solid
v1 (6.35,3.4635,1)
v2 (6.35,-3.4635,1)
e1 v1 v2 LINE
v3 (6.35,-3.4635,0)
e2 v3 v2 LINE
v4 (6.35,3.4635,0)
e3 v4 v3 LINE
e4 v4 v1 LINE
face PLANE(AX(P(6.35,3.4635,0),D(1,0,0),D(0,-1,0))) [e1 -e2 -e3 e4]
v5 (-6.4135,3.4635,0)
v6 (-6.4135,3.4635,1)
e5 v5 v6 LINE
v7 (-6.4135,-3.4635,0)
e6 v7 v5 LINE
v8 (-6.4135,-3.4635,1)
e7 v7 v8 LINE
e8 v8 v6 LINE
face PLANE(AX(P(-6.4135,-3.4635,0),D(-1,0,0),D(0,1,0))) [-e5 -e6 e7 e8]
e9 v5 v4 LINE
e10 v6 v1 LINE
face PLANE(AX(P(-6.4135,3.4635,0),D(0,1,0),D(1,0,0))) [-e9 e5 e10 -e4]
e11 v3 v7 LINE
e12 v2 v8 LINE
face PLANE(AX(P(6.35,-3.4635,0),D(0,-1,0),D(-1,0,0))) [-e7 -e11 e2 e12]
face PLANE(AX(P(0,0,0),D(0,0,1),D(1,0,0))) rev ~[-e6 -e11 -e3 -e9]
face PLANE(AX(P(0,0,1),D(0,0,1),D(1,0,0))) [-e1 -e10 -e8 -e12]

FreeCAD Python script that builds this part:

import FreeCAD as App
import Part
import Sketcher

doc = App.newDocument("Part")
body = doc.addObject("PartDesign::Body", "Body")

# Sketch on XY plane
sketch1 = body.newObject("Sketcher::SketchObject", "Sketch")
sketch1.AttachmentSupport = (doc.getObject("XY_Plane"), [""])
sketch1.MapMode = "FlatFace"
sketch1.addGeometry([
    Part.LineSegment(App.Vector(6, 3, 0), App.Vector(-6, 3, 0)),
    Part.LineSegment(App.Vector(-6, 3, 0), App.Vector(-6, -3, 0)),
    Part.LineSegment(App.Vector(-6, -3, 0), App.Vector(6, -3, 0)),
    Part.LineSegment(App.Vector(6, -3, 0), App.Vector(6, 3, 0)),
], False)
sketch1.addConstraint([
    Sketcher.Constraint("Coincident", 0, 2, 1, 1),
    Sketcher.Constraint("Coincident", 1, 2, 2, 1),
    Sketcher.Constraint("Coincident", 2, 2, 3, 1),
    Sketcher.Constraint("Coincident", 3, 2, 0, 1),
    Sketcher.Constraint("Horizontal", 0),
    Sketcher.Constraint("Vertical", 1),
    Sketcher.Constraint("Horizontal", 2),
    Sketcher.Constraint("Vertical", 3),
    Sketcher.Constraint("DistanceY", 1, 2, 1, 1, 6.927),
    Sketcher.Constraint("DistanceX", -1, 1, 2, 2, 6.35),
    Sketcher.Constraint("DistanceX", 0, 2, 0, 1, 12.7635),
    Sketcher.Constraint("DistanceY", -1, 1, 0, 2, 3.4635),
])
pad1 = body.newObject("PartDesign::Pad", "Pad")
pad1.Profile = sketch1
pad1.Length = 1

doc.recompute()
